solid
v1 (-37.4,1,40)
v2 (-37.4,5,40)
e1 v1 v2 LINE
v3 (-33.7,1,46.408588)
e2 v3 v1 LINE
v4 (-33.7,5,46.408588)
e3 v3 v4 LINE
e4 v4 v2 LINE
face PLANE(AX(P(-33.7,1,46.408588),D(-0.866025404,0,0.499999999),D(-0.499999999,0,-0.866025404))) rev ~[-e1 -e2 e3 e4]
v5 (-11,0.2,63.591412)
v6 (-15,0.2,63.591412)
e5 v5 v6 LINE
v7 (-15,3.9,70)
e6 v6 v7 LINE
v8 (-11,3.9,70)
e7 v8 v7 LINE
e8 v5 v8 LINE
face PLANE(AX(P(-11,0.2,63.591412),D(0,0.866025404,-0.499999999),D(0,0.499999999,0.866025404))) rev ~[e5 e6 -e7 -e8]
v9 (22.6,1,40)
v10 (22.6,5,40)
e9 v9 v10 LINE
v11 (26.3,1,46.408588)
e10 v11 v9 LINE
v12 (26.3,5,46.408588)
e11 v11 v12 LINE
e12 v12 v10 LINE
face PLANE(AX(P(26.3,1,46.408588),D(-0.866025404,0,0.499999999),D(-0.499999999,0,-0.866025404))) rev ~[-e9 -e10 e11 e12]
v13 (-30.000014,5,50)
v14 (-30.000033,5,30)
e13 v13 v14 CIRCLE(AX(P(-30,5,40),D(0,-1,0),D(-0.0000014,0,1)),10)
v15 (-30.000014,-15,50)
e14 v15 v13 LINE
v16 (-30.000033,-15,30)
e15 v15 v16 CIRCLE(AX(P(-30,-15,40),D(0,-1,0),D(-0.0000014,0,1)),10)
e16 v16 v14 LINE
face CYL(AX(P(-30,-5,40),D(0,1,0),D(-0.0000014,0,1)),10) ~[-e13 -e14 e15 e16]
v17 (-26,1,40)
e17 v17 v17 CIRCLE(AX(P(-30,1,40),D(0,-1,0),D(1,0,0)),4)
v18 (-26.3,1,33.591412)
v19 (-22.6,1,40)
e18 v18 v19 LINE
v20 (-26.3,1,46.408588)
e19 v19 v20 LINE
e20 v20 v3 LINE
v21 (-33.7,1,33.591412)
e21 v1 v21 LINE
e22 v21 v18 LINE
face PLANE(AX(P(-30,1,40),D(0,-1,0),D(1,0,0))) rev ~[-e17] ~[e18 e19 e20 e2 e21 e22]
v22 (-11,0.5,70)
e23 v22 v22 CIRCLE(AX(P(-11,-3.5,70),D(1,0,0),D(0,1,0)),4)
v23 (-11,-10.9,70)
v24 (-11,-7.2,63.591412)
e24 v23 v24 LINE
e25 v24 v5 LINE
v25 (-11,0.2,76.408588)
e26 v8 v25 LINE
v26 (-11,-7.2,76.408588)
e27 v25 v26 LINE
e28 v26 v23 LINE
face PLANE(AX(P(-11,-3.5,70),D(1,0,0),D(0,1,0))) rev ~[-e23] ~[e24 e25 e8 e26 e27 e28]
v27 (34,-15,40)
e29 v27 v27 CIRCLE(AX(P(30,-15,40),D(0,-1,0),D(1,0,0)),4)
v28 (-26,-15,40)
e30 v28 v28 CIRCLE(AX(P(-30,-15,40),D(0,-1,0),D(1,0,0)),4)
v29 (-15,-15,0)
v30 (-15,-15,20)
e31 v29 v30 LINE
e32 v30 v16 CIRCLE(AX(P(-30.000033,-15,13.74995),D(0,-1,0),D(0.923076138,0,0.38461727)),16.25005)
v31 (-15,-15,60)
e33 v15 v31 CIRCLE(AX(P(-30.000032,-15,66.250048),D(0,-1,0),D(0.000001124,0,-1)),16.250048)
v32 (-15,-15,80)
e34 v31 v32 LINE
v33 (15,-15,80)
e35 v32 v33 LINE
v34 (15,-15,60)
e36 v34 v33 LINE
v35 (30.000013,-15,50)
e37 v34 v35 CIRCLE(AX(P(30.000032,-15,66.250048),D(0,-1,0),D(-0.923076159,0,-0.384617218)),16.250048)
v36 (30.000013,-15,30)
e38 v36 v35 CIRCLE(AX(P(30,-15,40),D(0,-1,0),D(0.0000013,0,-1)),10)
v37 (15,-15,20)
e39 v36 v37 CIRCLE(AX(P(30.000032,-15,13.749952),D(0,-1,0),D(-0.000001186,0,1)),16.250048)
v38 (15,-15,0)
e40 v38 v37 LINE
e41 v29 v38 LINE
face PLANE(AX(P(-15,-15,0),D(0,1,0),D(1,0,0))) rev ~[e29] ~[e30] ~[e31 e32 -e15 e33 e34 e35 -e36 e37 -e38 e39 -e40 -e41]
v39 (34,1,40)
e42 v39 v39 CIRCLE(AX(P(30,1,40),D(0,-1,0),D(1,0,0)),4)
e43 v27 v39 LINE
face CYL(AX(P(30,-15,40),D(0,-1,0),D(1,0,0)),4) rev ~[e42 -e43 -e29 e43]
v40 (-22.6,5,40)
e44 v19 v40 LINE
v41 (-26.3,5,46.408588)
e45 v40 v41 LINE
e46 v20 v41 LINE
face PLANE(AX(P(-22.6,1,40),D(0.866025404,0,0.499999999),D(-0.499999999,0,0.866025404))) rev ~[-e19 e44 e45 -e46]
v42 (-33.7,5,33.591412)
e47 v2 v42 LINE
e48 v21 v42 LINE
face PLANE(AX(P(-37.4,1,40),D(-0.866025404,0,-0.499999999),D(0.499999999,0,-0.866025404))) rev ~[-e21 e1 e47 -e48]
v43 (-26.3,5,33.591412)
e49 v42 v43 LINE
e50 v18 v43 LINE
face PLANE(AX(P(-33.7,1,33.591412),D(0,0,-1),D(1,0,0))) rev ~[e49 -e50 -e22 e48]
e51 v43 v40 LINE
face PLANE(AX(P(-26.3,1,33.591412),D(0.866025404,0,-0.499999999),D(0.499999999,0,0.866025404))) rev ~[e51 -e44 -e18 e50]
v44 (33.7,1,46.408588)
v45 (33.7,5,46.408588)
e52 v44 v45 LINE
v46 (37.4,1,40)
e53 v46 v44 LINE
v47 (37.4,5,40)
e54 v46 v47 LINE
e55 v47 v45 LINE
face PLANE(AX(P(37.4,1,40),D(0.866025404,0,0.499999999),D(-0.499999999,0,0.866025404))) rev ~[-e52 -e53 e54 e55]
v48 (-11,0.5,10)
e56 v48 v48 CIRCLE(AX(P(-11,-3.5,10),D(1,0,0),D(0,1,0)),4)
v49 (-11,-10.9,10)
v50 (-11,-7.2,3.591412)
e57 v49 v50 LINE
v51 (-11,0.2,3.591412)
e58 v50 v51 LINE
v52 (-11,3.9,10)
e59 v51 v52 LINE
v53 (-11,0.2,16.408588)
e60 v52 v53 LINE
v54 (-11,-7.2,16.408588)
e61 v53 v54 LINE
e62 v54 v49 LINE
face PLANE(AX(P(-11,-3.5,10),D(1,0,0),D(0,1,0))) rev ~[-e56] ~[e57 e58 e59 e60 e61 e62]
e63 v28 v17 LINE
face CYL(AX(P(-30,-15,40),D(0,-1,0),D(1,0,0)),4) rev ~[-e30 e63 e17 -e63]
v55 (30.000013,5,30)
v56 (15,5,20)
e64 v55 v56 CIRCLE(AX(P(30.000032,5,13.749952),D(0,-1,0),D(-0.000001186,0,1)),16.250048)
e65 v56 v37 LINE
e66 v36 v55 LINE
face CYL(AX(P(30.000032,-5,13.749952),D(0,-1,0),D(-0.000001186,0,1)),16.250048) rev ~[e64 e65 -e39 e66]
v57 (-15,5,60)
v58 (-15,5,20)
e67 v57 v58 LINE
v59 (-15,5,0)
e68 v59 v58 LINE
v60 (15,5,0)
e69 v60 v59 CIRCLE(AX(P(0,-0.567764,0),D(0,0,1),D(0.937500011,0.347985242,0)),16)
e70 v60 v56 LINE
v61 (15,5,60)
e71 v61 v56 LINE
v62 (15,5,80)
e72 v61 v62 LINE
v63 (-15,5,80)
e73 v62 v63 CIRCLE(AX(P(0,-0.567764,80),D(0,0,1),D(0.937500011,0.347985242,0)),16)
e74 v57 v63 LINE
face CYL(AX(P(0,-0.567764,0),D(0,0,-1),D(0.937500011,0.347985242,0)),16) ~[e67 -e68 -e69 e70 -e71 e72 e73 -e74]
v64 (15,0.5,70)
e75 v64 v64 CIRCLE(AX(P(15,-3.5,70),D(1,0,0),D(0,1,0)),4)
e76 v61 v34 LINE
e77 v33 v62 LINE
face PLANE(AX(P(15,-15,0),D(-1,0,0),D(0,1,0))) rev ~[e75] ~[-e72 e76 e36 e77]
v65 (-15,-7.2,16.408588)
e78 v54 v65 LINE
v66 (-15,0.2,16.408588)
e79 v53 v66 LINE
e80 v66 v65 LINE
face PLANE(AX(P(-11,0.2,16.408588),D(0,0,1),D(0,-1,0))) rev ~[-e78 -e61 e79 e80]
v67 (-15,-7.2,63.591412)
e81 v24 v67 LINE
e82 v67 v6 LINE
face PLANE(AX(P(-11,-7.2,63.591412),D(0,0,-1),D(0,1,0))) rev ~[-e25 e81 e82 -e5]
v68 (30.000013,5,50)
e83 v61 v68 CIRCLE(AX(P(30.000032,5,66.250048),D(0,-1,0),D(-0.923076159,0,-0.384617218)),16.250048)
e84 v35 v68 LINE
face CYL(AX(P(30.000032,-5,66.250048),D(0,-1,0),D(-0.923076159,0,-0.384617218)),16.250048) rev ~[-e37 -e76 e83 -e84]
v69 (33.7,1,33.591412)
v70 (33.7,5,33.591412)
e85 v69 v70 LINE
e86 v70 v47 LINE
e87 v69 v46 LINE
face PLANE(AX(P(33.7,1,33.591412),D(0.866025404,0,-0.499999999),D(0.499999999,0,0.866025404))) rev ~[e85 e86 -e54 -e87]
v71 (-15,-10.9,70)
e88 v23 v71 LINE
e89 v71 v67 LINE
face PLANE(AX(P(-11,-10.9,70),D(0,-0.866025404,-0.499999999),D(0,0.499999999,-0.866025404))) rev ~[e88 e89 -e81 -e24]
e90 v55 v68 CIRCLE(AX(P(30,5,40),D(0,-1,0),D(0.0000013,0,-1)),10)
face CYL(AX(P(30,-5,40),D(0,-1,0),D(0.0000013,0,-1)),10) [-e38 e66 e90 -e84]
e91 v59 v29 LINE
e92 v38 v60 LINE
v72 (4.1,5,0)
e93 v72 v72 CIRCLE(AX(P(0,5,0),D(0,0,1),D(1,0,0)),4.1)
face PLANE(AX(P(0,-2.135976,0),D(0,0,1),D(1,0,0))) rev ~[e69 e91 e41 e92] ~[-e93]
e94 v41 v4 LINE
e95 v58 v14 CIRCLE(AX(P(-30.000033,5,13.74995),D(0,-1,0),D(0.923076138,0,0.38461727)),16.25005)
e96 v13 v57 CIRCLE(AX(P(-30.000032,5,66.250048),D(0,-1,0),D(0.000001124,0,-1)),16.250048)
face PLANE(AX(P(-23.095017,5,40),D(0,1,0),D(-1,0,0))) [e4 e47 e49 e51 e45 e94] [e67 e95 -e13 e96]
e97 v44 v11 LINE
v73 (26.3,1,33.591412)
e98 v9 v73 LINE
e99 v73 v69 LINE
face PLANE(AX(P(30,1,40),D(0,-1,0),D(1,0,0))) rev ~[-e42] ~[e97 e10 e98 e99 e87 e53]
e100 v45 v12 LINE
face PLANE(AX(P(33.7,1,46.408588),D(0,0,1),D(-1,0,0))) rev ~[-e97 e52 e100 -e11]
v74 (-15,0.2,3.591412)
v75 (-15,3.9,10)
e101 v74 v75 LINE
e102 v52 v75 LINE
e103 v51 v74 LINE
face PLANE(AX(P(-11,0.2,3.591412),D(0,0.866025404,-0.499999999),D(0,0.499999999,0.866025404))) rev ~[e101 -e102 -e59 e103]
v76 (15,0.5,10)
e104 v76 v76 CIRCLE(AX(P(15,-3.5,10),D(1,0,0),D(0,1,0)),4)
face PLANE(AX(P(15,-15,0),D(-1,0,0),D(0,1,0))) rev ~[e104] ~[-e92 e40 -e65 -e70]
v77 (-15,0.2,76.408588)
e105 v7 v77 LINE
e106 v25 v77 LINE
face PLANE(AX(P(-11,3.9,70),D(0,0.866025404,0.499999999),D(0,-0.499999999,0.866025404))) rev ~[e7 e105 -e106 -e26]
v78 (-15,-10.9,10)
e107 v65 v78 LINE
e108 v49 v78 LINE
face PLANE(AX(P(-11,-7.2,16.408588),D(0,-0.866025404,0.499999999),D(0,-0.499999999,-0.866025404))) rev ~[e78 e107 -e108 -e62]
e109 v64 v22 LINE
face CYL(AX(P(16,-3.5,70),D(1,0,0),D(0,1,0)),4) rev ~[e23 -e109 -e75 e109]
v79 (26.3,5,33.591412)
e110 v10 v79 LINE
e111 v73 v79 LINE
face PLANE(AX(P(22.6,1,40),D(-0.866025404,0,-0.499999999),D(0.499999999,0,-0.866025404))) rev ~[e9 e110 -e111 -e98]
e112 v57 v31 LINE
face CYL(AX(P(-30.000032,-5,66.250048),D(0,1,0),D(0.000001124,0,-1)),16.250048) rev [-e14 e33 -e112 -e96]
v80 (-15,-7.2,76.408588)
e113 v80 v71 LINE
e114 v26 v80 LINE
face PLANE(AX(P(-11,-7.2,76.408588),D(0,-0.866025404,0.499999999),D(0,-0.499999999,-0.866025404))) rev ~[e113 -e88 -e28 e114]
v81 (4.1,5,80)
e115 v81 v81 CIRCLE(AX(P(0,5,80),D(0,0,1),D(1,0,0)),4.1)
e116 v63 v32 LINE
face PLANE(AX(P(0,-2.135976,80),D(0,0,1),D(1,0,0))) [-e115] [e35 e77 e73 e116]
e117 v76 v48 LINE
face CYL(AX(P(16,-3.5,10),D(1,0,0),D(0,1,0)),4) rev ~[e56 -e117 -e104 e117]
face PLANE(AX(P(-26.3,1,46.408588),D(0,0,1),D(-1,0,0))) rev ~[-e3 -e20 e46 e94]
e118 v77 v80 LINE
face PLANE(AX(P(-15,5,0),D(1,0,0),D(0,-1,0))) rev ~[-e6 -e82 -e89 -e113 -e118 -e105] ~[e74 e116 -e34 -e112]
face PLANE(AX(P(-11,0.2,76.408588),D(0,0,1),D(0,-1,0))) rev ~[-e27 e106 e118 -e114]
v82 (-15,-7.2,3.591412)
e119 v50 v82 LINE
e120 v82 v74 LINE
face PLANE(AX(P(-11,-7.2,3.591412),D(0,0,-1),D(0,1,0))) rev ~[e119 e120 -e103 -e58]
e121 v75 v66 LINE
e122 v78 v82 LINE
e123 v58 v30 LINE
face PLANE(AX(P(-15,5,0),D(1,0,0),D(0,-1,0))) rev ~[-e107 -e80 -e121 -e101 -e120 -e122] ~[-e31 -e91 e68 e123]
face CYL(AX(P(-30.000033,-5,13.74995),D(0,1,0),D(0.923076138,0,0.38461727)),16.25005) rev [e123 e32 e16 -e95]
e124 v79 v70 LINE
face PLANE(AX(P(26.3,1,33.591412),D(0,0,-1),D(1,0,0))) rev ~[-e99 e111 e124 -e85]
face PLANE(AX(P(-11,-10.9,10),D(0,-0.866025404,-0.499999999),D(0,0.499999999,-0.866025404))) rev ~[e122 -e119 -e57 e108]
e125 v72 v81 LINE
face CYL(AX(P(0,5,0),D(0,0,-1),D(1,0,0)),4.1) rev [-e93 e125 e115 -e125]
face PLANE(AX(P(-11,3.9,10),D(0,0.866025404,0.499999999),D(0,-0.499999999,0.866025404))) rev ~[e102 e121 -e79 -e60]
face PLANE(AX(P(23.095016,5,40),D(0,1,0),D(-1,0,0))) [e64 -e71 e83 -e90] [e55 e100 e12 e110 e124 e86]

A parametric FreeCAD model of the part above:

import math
import FreeCAD as App
import Part
import Sketcher
from FreeCAD import Vector
Q = App.Units.Quantity


def add_polygon(sketch, points):
    """Adds a closed chain of lines whose ends are joined by coincident constraints."""
    first, n = sketch.GeometryCount, len(points)
    for a, b in zip(points, points[1:] + points[:1]):
        sketch.addGeometry(Part.LineSegment(App.Vector(*a, 0), App.Vector(*b, 0)), False)
    for i in range(n):
        sketch.addConstraint(Sketcher.Constraint("Coincident", first + i, 2, first + (i + 1) % n, 1))

doc = App.newDocument("Part")
params = doc.addObject("Spreadsheet::Sheet", "Params")
for row, (alias, value) in enumerate([
    ("sketch1_diameter", "8 mm"),
    ("pad1_length", "20 mm"),
    ("sketch2_diameter", "8 mm"),
    ("pad2_length", "32 mm"),
    ("sketch3_width", "7.4 mm"),
    ("sketch3_length", "7.4 mm"),
    ("pad3_length", "4 mm"),
    ("sketch4_width", "7.4 mm"),
    ("sketch4_length", "7.4 mm"),
    ("pad4_length", "4 mm"),
    ("sketch5_radius", "16 mm"),
    ("sketch5_diameter", "8.2 mm"),
    ("sketch5_width", "30 mm"),
    ("sketch5_height", "20 mm"),
    ("pad5_length", "80 mm"),
    ("sketch6_radius", "10 mm"),
    ("sketch6_height", "40 mm"),
    ("pad6_length", "20 mm"),
], start=1):
    params.set(f"A{row}", alias)
    params.set(f"B{row}", "=" + value)
    params.setAlias(f"B{row}", alias)

body = doc.addObject("PartDesign::Body", "Body")
body.AllowCompound = True

# Sketch on XZ plane
sketch1 = body.newObject("Sketcher::SketchObject", "Sketch")
sketch1.AttachmentSupport = (doc.getObject("XZ_Plane"), [""])
sketch1.MapMode = "FlatFace"
sketch1.AttachmentOffset = App.Placement(Vector(0, 0, 15), App.Rotation())
sketch1.addGeometry([
    Part.Circle(Vector(30, 40, 0), Vector(0, 0, 1), 4),
    Part.Circle(Vector(-30, 40, 0), Vector(0, 0, 1), 4),
], False)
sketch1.addConstraint([
    Sketcher.Constraint("Equal", 0, 1),
    Sketcher.Constraint("Symmetric", 0, 3, 1, 3, -2),
    Sketcher.Constraint("Diameter", 0, 8.0),
    Sketcher.Constraint("DistanceX", -1, 1, 0, 3, 30.0),
    Sketcher.Constraint("DistanceY", -1, 1, 0, 3, 40.0),
])
sketch1.setExpression("Constraints[2]", "Params.sketch1_diameter")
pad1 = body.newObject("PartDesign::Pad", "Pad")
pad1.Profile = sketch1
pad1.setExpression("Length", "Params.pad1_length")
pad1.Reversed = True
body2 = doc.addObject("PartDesign::Body", "Body001")
body2.AllowCompound = True

# Sketch on YZ plane
sketch2 = body2.newObject("Sketcher::SketchObject", "Sketch001")
sketch2.AttachmentSupport = (doc.getObject("YZ_Plane001"), [""])
sketch2.MapMode = "FlatFace"
sketch2.AttachmentOffset = App.Placement(Vector(0, 0, 16), App.Rotation())
sketch2.addGeometry([
    Part.Circle(Vector(-3.5, 70, 0), Vector(0, 0, 1), 4),
    Part.Circle(Vector(-3.5, 10, 0), Vector(0, 0, 1), 4),
], False)
sketch2.addConstraint([
    Sketcher.Constraint("Equal", 0, 1),
    Sketcher.Constraint("Vertical", 0, 3, 1, 3),
    Sketcher.Constraint("Diameter", 0, 8.0),
    Sketcher.Constraint("DistanceY", -1, 1, 0, 3, 70.0),
    Sketcher.Constraint("DistanceY", -1, 1, 1, 3, 10.0),
    Sketcher.Constraint("DistanceX", 0, 3, -1, 1, 3.5),
])
sketch2.setExpression("Constraints[2]", "Params.sketch2_diameter")
pad2 = body2.newObject("PartDesign::Pad", "Pad001")
pad2.Profile = sketch2
pad2.setExpression("Length", "Params.pad2_length")
pad2.Reversed = True
body3 = doc.addObject("PartDesign::Body", "Body002")
body3.AllowCompound = True

# Sketch on YZ plane
sketch3 = body3.newObject("Sketcher::SketchObject", "Sketch002")
sketch3.AttachmentSupport = (doc.getObject("YZ_Plane002"), [""])
sketch3.MapMode = "FlatFace"
sketch3.AttachmentOffset = App.Placement(Vector(0, 0, -11), App.Rotation())
add_polygon(sketch3, [(4, 70), (0, 76), (-7, 76), (-11, 70), (-7, 64), (0, 64)])  # lines 0-5
add_polygon(sketch3, [(0, 4), (4, 10), (0, 16), (-7, 16), (-11, 10), (-7, 4)])  # lines 6-11
sketch3.addConstraint([
    Sketcher.Constraint("Horizontal", 1),
    Sketcher.Constraint("Horizontal", 4),
    Sketcher.Constraint("Horizontal", 8),
    Sketcher.Constraint("Horizontal", 11),
    Sketcher.Constraint("Parallel", 0, 3),
    Sketcher.Constraint("Parallel", 2, 5),
    Sketcher.Constraint("Parallel", 5, 6),
    Sketcher.Constraint("Parallel", 3, 7),
    Sketcher.Constraint("Parallel", 6, 9),
    Sketcher.Constraint("Parallel", 7, 10),
    Sketcher.Constraint("Horizontal", 2, 2, 5, 2),
    Sketcher.Constraint("Horizontal", 6, 2, 9, 2),
    Sketcher.Constraint("Vertical", 1, 2, 3, 2),
    Sketcher.Constraint("Vertical", 0, 2, 4, 2),
    Sketcher.Constraint("Vertical", 5, 2, 6, 2),
    Sketcher.Constraint("Vertical", 4, 2, 7, 2),
    Sketcher.Constraint("Vertical", 3, 2, 8, 2),
    Sketcher.Constraint("Vertical", 8, 2, 10, 2),
    Sketcher.Constraint("Angle", 0, Q("120 deg")),
    Sketcher.Constraint("DistanceX", 1, 2, 1, 1, 7.4),
    Sketcher.Constraint("DistanceY", -1, 1, 2, 2, 70.0),
    Sketcher.Constraint("DistanceY", -1, 1, 6, 2, 10.0),
    Sketcher.Constraint("Distance", 0, 7.4),
    Sketcher.Constraint("DistanceX", -1, 1, 0, 2, 0.2),
])
sketch3.setExpression("Constraints[31]", "Params.sketch3_width")
sketch3.setExpression("Constraints[34]", "Params.sketch3_length")
pad3 = body3.newObject("PartDesign::Pad", "Pad002")
pad3.Profile = sketch3
pad3.setExpression("Length", "Params.pad3_length")
pad3.Reversed = True
body4 = doc.addObject("PartDesign::Body", "Body003")
body4.AllowCompound = True

# Sketch on XZ plane
sketch4 = body4.newObject("Sketcher::SketchObject", "Sketch003")
sketch4.AttachmentSupport = (doc.getObject("XZ_Plane003"), [""])
sketch4.MapMode = "FlatFace"
sketch4.AttachmentOffset = App.Placement(Vector(0, 0, -1), App.Rotation())
add_polygon(sketch4, [(34, 34), (37, 40), (34, 46), (26, 46), (23, 40), (26, 34)])  # lines 0-5
add_polygon(sketch4, [(-26, 34), (-23, 40), (-26, 46), (-34, 46), (-37, 40), (-34, 34)])  # lines 6-11
sketch4.addConstraint([
    Sketcher.Constraint("Horizontal", 2),
    Sketcher.Constraint("Horizontal", 5),
    Sketcher.Constraint("Horizontal", 8),
    Sketcher.Constraint("Horizontal", 11),
    Sketcher.Constraint("Symmetric", 3, 2, 6, 2, -2),
    Sketcher.Constraint("Symmetric", 2, 2, 7, 2, -2),
    Sketcher.Constraint("Symmetric", 0, 2, 9, 2, -2),
    Sketcher.Constraint("Symmetric", 5, 2, 10, 2, -2),
    Sketcher.Constraint("Parallel", 0, 3),
    Sketcher.Constraint("Parallel", 1, 4),
    Sketcher.Constraint("Parallel", 3, 6),
    Sketcher.Constraint("Parallel", 4, 7),
    Sketcher.Constraint("Parallel", 6, 9),
    Sketcher.Constraint("Horizontal", 0, 2, 3, 2),
    Sketcher.Constraint("Vertical", 2, 2, 4, 2),
    Sketcher.Constraint("Angle", 0, Q("60 deg")),
    Sketcher.Constraint("DistanceX", 2, 2, 2, 1, 7.4),
    Sketcher.Constraint("DistanceY", -1, 1, 0, 2, 40.0),
    Sketcher.Constraint("DistanceX", 7, 2, 1, 2, 60.0),
    Sketcher.Constraint("Distance", 0, 7.4),
])
sketch4.setExpression("Constraints[28]", "Params.sketch4_width")
sketch4.setExpression("Constraints[31]", "Params.sketch4_length")
pad4 = body4.newObject("PartDesign::Pad", "Pad003")
pad4.Profile = sketch4
pad4.setExpression("Length", "Params.pad4_length")
pad4.Reversed = True
doc.recompute()

boolean = body4.newObject("PartDesign::Boolean", "Boolean")
boolean.Type = "Fuse"
boolean.addObjects([body])
doc.recompute()

boolean2 = body4.newObject("PartDesign::Boolean", "Boolean001")
boolean2.Type = "Fuse"
boolean2.addObjects([body2])
doc.recompute()

boolean3 = body4.newObject("PartDesign::Boolean", "Boolean002")
boolean3.Type = "Fuse"
boolean3.addObjects([body3])
body5 = doc.addObject("PartDesign::Body", "Body004")

# Sketch on XY plane
sketch5 = body5.newObject("Sketcher::SketchObject", "Sketch004")
sketch5.AttachmentSupport = (doc.getObject("XY_Plane004"), [""])
sketch5.MapMode = "FlatFace"
sketch5.addGeometry([
    Part.LineSegment(Vector(-15, 5, 0), Vector(-15, -15, 0)),  # 0
    Part.LineSegment(Vector(-15, -15, 0), Vector(15, -15, 0)),  # 1
    Part.LineSegment(Vector(15, -15, 0), Vector(15, 5, 0)),  # 2
    Part.ArcOfCircle(Part.Circle(Vector(0, -0.6, 0), Vector(0, 0, 1), 16), math.radians(20), math.radians(160)),  # 3
    Part.Circle(Vector(0, 5, 0), Vector(0, 0, 1), 4.1),  # 4
], False)
sketch5.addConstraint([
    Sketcher.Constraint("Coincident", 0, 2, 1, 1),
    Sketcher.Constraint("Coincident", 1, 2, 2, 1),
    Sketcher.Constraint("Coincident", 2, 2, 3, 1),
    Sketcher.Constraint("Coincident", 3, 2, 0, 1),
    Sketcher.Constraint("Vertical", 0),
    Sketcher.Constraint("Horizontal", 1),
    Sketcher.Constraint("Vertical", 2),
    Sketcher.Constraint("Symmetric", 2, 2, 3, 2, -2),
    Sketcher.Constraint("PointOnObject", 4, 3, -2),
    Sketcher.Constraint("Horizontal", 4, 3, 2, 2),
    Sketcher.Constraint("Radius", 3, 16.0),
    Sketcher.Constraint("Diameter", 4, 8.2),
    Sketcher.Constraint("DistanceX", 1, 1, 1, 2, 30.0),
    Sketcher.Constraint("DistanceY", 0, 2, 0, 1, 20.0),
    Sketcher.Constraint("DistanceY", -1, 1, 4, 3, 5.0),
])
sketch5.setExpression("Constraints[10]", "Params.sketch5_radius")
sketch5.setExpression("Constraints[11]", "Params.sketch5_diameter")
sketch5.setExpression("Constraints[12]", "Params.sketch5_width")
sketch5.setExpression("Constraints[13]", "Params.sketch5_height")
pad5 = body5.newObject("PartDesign::Pad", "Pad004")
pad5.Profile = sketch5
pad5.setExpression("Length", "Params.pad5_length")
body6 = doc.addObject("PartDesign::Body", "Body005")
body6.AllowCompound = True

# Sketch on XZ plane
sketch6 = body6.newObject("Sketcher::SketchObject", "Sketch005")
sketch6.AttachmentSupport = (doc.getObject("XZ_Plane005"), [""])
sketch6.MapMode = "FlatFace"
sketch6.AttachmentOffset = App.Placement(Vector(0, 0, 5), App.Rotation())
sketch6.addGeometry([
    Part.ArcOfCircle(Part.Circle(Vector(-30, 14, 0), Vector(0, 0, 1), 16), math.radians(23), math.radians(90)),  # 0
    Part.LineSegment(Vector(-15, 20, 0), Vector(-15, 60, 0)),  # 1
    Part.ArcOfCircle(Part.Circle(Vector(-30, 66, 0), Vector(0, 0, 1), 16), math.radians(-90), math.radians(-23)),  # 2
    Part.ArcOfCircle(Part.Circle(Vector(-30, 40, 0), Vector(0, 0, 1), 10), math.radians(90), math.radians(270)),  # 3
    Part.ArcOfCircle(Part.Circle(Vector(30, 66, 0), Vector(0, 0, 1), 16), math.radians(-157), math.radians(-90)),  # 4
    Part.LineSegment(Vector(15, 60, 0), Vector(15, 20, 0)),  # 5
    Part.ArcOfCircle(Part.Circle(Vector(30, 14, 0), Vector(0, 0, 1), 16), math.radians(90), math.radians(157)),  # 6
    Part.ArcOfCircle(Part.Circle(Vector(30, 40, 0), Vector(0, 0, 1), 10), math.radians(-90), math.radians(90)),  # 7
], False)
sketch6.addConstraint([
    Sketcher.Constraint("Coincident", 0, 1, 1, 1),
    Sketcher.Constraint("Coincident", 1, 2, 2, 2),
    Sketcher.Constraint("Tangent", 2, 1, 3, 1),
    Sketcher.Constraint("Coincident", 3, 2, 0, 2),
    Sketcher.Constraint("Coincident", 4, 1, 5, 1),
    Sketcher.Constraint("Coincident", 5, 2, 6, 2),
    Sketcher.Constraint("Tangent", 6, 1, 7, 1),
    Sketcher.Constraint("Tangent", 7, 2, 4, 2),
    Sketcher.Constraint("Vertical", 1),
    Sketcher.Constraint("Vertical", 5),
    Sketcher.Constraint("Equal", 0, 2),
    Sketcher.Constraint("Equal", 2, 4),
    Sketcher.Constraint("Equal", 4, 6),
    Sketcher.Constraint("Equal", 3, 7),
    Sketcher.Constraint("Symmetric", 2, 3, 4, 3, -2),
    Sketcher.Constraint("Symmetric", 0, 1, 5, 2, -2),
    Sketcher.Constraint("Vertical", 0, 3, 2, 3),
    Sketcher.Constraint("Vertical", 2, 3, 3, 2),
    Sketcher.Constraint("Radius", 3, 10.0),
    Sketcher.Constraint("DistanceY", 1, 1, 1, 2, 40.0),
    Sketcher.Constraint("DistanceX", 3, 3, -1, 1, 30.0),
    Sketcher.Constraint("DistanceY", -1, 1, 3, 3, 40.0),
    Sketcher.Constraint("DistanceX", -1, 1, 7, 3, 30.0),
    Sketcher.Constraint("DistanceX", 0, 1, -1, 1, 15.0),
    Sketcher.Constraint("Radius", 0, 16.25005),
])
sketch6.setExpression("Constraints[18]", "Params.sketch6_radius")
sketch6.setExpression("Constraints[19]", "Params.sketch6_height")
pad6 = body6.newObject("PartDesign::Pad", "Pad005")
pad6.Profile = sketch6
pad6.setExpression("Length", "Params.pad6_length")
pad6.Midplane = True
doc.recompute()

boolean4 = body6.newObject("PartDesign::Boolean", "Boolean003")
boolean4.Type = "Fuse"
boolean4.addObjects([body5])
doc.recompute()

boolean5 = body6.newObject("PartDesign::Boolean", "Boolean004")
boolean5.Type = "Cut"
boolean5.addObjects([body4])

doc.recompute()
